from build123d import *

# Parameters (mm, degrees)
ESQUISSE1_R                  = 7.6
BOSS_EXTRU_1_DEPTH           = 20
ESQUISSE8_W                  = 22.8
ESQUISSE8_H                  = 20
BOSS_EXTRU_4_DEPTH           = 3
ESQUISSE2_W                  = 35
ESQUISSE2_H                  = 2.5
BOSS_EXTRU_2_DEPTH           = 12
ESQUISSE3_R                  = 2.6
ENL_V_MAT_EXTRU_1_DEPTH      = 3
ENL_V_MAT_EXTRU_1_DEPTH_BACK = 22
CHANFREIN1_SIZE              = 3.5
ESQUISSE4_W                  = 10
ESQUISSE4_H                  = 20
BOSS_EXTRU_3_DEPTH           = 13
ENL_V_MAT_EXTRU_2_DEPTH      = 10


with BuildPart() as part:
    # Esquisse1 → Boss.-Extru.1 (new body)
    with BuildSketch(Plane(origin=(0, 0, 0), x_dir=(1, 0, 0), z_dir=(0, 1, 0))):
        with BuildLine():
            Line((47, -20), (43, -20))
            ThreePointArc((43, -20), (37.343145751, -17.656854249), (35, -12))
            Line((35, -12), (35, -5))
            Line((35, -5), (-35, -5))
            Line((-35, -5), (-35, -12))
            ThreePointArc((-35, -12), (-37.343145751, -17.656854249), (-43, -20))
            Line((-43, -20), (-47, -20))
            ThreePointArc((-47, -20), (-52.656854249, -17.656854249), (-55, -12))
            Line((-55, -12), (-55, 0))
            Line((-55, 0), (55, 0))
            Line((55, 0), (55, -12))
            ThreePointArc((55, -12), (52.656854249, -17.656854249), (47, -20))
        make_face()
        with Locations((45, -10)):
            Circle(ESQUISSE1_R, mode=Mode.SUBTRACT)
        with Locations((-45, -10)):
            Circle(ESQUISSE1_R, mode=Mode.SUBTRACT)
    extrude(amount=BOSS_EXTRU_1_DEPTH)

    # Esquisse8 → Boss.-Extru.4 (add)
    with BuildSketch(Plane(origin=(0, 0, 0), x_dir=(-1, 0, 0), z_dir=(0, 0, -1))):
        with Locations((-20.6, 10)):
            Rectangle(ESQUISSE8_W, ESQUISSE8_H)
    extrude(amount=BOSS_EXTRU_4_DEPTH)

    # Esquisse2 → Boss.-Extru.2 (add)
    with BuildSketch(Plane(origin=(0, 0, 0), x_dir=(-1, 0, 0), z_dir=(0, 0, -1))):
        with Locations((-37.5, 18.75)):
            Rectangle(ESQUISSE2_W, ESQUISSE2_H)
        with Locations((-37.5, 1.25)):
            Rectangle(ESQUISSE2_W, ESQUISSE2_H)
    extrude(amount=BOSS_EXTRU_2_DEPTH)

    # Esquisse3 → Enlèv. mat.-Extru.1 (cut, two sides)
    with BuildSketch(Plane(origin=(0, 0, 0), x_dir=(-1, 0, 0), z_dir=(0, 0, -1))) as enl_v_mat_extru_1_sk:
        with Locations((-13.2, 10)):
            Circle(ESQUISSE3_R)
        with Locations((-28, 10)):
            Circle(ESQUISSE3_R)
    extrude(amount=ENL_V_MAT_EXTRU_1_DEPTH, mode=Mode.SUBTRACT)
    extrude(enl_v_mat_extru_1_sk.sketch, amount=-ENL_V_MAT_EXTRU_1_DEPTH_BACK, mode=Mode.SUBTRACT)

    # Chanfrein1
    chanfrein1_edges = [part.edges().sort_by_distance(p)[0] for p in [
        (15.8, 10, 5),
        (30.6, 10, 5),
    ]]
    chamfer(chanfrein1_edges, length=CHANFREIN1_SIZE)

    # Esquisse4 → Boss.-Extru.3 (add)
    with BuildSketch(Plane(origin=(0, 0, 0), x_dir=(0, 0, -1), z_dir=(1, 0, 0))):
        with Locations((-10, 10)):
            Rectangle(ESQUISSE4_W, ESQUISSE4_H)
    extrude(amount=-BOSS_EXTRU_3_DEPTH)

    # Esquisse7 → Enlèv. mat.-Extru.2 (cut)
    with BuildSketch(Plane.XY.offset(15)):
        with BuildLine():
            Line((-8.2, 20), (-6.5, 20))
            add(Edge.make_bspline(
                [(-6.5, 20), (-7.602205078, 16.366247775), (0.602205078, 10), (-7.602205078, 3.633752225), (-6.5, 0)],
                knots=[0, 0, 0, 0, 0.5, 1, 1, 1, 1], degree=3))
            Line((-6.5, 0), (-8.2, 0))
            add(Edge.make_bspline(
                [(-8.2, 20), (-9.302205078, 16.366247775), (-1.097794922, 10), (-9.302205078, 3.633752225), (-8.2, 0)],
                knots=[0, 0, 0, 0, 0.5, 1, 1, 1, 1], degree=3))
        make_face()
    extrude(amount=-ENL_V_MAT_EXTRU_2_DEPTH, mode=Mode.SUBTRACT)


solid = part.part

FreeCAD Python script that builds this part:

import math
import FreeCAD as App
import Part
import Sketcher


def edges_at(feature, points):
    """Names of the edges that pass closest to the given points."""
    edges = feature.Shape.Edges
    near = lambda p: min(range(len(edges)), key=lambda i: edges[i].distToShape(Part.Vertex(*p))[0])
    return sorted({f"Edge{near(p) + 1}" for p in points})


def add_polygon(sketch, points):
    """Adds a closed chain of lines whose ends are joined by coincident constraints."""
    first, n = sketch.GeometryCount, len(points)
    for a, b in zip(points, points[1:] + points[:1]):
        sketch.addGeometry(Part.LineSegment(App.Vector(*a, 0), App.Vector(*b, 0)), False)
    for i in range(n):
        sketch.addConstraint(Sketcher.Constraint("Coincident", first + i, 2, first + (i + 1) % n, 1))

doc = App.newDocument("Part")
params = doc.addObject("Spreadsheet::Sheet", "Params")
for row, (alias, value) in enumerate([
    ("sketch1_radius", "8 mm"),
    ("sketch1_diameter", "15.2 mm"),
    ("sketch1_width", "4 mm"),
    ("sketch1_width2", "110 mm"),
    ("sketch1_height", "12 mm"),
    ("pad1_length", "20 mm"),
    ("sketch2_height", "20 mm"),
    ("sketch2_width", "22.8 mm"),
    ("pad2_length", "3 mm"),
    ("sketch3_width", "35 mm"),
    ("sketch3_height", "2.5 mm"),
    ("pad3_length", "12 mm"),
    ("sketch4_diameter", "5.2 mm"),
    ("chamfer_size", "3.5 mm"),
    ("sketch5_width", "20 mm"),
    ("sketch5_height", "10 mm"),
    ("pad4_length", "13 mm"),
    ("pocket2_length", "10 mm"),
], start=1):
    params.set(f"A{row}", alias)
    params.set(f"B{row}", "=" + value)
    params.setAlias(f"B{row}", alias)

body = doc.addObject("PartDesign::Body", "Body")

# Sketch on XZ plane
sketch1 = body.newObject("Sketcher::SketchObject", "Sketch")
sketch1.AttachmentSupport = (doc.getObject("XZ_Plane"), [""])
sketch1.MapMode = "FlatFace"
sketch1.addGeometry([
    Part.LineSegment(App.Vector(43, 20, 0), App.Vector(47, 20, 0)),  # 0
    Part.ArcOfCircle(Part.Circle(App.Vector(47, 12, 0), App.Vector(0, 0, 1), 8), math.radians(0), math.radians(90)),  # 1
    Part.LineSegment(App.Vector(55, 12, 0), App.Vector(55, 0, 0)),  # 2
    Part.LineSegment(App.Vector(55, 0, 0), App.Vector(-55, 0, 0)),  # 3
    Part.LineSegment(App.Vector(-55, 0, 0), App.Vector(-55, 12, 0)),  # 4
    Part.ArcOfCircle(Part.Circle(App.Vector(-47, 12, 0), App.Vector(0, 0, 1), 8), math.radians(90), math.radians(180)),  # 5
    Part.LineSegment(App.Vector(-47, 20, 0), App.Vector(-43, 20, 0)),  # 6
    Part.ArcOfCircle(Part.Circle(App.Vector(-43, 12, 0), App.Vector(0, 0, 1), 8), math.radians(0), math.radians(90)),  # 7
    Part.LineSegment(App.Vector(-35, 12, 0), App.Vector(-35, 5, 0)),  # 8
    Part.LineSegment(App.Vector(-35, 5, 0), App.Vector(35, 5, 0)),  # 9
    Part.LineSegment(App.Vector(35, 5, 0), App.Vector(35, 12, 0)),  # 10
    Part.ArcOfCircle(Part.Circle(App.Vector(43, 12, 0), App.Vector(0, 0, 1), 8), math.radians(90), math.radians(180)),  # 11
    Part.Circle(App.Vector(45, 10, 0), App.Vector(0, 0, 1), 7.6),  # 12
    Part.Circle(App.Vector(-45, 10, 0), App.Vector(0, 0, 1), 7.6),  # 13
], False)
sketch1.addConstraint([
    Sketcher.Constraint("Tangent", 0, 2, 1, 2),
    Sketcher.Constraint("Tangent", 1, 1, 2, 1),
    Sketcher.Constraint("Coincident", 2, 2, 3, 1),
    Sketcher.Constraint("Coincident", 3, 2, 4, 1),
    Sketcher.Constraint("Tangent", 4, 2, 5, 2),
    Sketcher.Constraint("Tangent", 5, 1, 6, 1),
    Sketcher.Constraint("Tangent", 6, 2, 7, 2),
    Sketcher.Constraint("Tangent", 7, 1, 8, 1),
    Sketcher.Constraint("Coincident", 8, 2, 9, 1),
    Sketcher.Constraint("Coincident", 9, 2, 10, 1),
    Sketcher.Constraint("Tangent", 10, 2, 11, 2),
    Sketcher.Constraint("Tangent", 11, 1, 0, 1),
    Sketcher.Constraint("Horizontal", 0),
    Sketcher.Constraint("Vertical", 2),
    Sketcher.Constraint("Horizontal", 3),
    Sketcher.Constraint("Vertical", 4),
    Sketcher.Constraint("Horizontal", 6),
    Sketcher.Constraint("Vertical", 8),
    Sketcher.Constraint("Horizontal", 9),
    Sketcher.Constraint("Vertical", 10),
    Sketcher.Constraint("Equal", 1, 5),
    Sketcher.Constraint("Equal", 5, 7),
    Sketcher.Constraint("Equal", 7, 11),
    Sketcher.Constraint("Equal", 12, 13),
    Sketcher.Constraint("Symmetric", 2, 2, 3, 2, -1, 1),
    Sketcher.Constraint("Symmetric", 7, 3, 11, 3, -2),
    Sketcher.Constraint("Symmetric", 12, 3, 13, 3, -2),
    Sketcher.Constraint("Radius", 1, 8.0),
    Sketcher.Constraint("Diameter", 12, 15.2),
    Sketcher.Constraint("DistanceX", 0, 1, 0, 2, 4.0),
    Sketcher.Constraint("DistanceX", 3, 2, 3, 1, 110.0),
    Sketcher.Constraint("DistanceY", 2, 2, 2, 1, 12.0),
    Sketcher.Constraint("DistanceY", 8, 2, 8, 1, 7.0),
    Sketcher.Constraint("DistanceX", -1, 1, 12, 3, 45.0),
    Sketcher.Constraint("DistanceY", -1, 1, 12, 3, 10.0),
])
sketch1.setExpression("Constraints[27]", "Params.sketch1_radius")
sketch1.setExpression("Constraints[28]", "Params.sketch1_diameter")
sketch1.setExpression("Constraints[29]", "Params.sketch1_width")
sketch1.setExpression("Constraints[30]", "Params.sketch1_width2")
sketch1.setExpression("Constraints[31]", "Params.sketch1_height")
pad1 = body.newObject("PartDesign::Pad", "Pad")
pad1.Profile = sketch1
pad1.setExpression("Length", "Params.pad1_length")
pad1.Reversed = True

# Sketch on XY plane
sketch2 = body.newObject("Sketcher::SketchObject", "Sketch001")
sketch2.AttachmentSupport = (doc.getObject("XY_Plane"), [""])
sketch2.MapMode = "FlatFace"
add_polygon(sketch2, [(32, 20), (32, 0), (9, 0), (9, 20)])  # lines 0-3
sketch2.addConstraint([
    Sketcher.Constraint("Vertical", 0),
    Sketcher.Constraint("Horizontal", 1),
    Sketcher.Constraint("Vertical", 2),
    Sketcher.Constraint("Horizontal", 3),
    Sketcher.Constraint("PointOnObject", 0, 2, -1),
    Sketcher.Constraint("DistanceY", 0, 2, 0, 1, 20.0),
    Sketcher.Constraint("DistanceX", 1, 2, 1, 1, 22.8),
    Sketcher.Constraint("DistanceX", -1, 1, 0, 2, 32.0),
])
sketch2.setExpression("Constraints[9]", "Params.sketch2_height")
sketch2.setExpression("Constraints[10]", "Params.sketch2_width")
pad2 = body.newObject("PartDesign::Pad", "Pad001")
pad2.Profile = sketch2
pad2.setExpression("Length", "Params.pad2_length")
pad2.Reversed = True

# Sketch on XY plane
sketch3 = body.newObject("Sketcher::SketchObject", "Sketch002")
sketch3.AttachmentSupport = (doc.getObject("XY_Plane"), [""])
sketch3.MapMode = "FlatFace"
add_polygon(sketch3, [(55, 20), (55, 17.5), (20, 17.5), (20, 20)])  # lines 0-3
add_polygon(sketch3, [(55, 2.5), (55, 0), (20, 0), (20, 2.5)])  # lines 4-7
sketch3.addConstraint([
    Sketcher.Constraint("Vertical", 0),
    Sketcher.Constraint("Horizontal", 1),
    Sketcher.Constraint("Vertical", 2),
    Sketcher.Constraint("Horizontal", 3),
    Sketcher.Constraint("Vertical", 4),
    Sketcher.Constraint("Horizontal", 5),
    Sketcher.Constraint("Vertical", 6),
    Sketcher.Constraint("Horizontal", 7),
    Sketcher.Constraint("PointOnObject", 4, 2, -1),
    Sketcher.Constraint("Vertical", 3, 2, 4, 2),
    Sketcher.Constraint("Vertical", 2, 2, 5, 2),
    Sketcher.Constraint("Equal", 2, 4),
    Sketcher.Constraint("DistanceX", 1, 2, 1, 1, 35.0),
    Sketcher.Constraint("DistanceY", 0, 2, 0, 1, 2.5),
    Sketcher.Constraint("DistanceX", -1, 1, 0, 2, 55.0),
    Sketcher.Constraint("DistanceY", -1, 1, 2, 2, 20.0),
])
sketch3.setExpression("Constraints[20]", "Params.sketch3_width")
sketch3.setExpression("Constraints[21]", "Params.sketch3_height")
pad3 = body.newObject("PartDesign::Pad", "Pad002")
pad3.Profile = sketch3
pad3.setExpression("Length", "Params.pad3_length")
pad3.Reversed = True

# Sketch on XY plane
sketch4 = body.newObject("Sketcher::SketchObject", "Sketch003")
sketch4.AttachmentSupport = (doc.getObject("XY_Plane"), [""])
sketch4.MapMode = "FlatFace"
sketch4.addGeometry([
    Part.Circle(App.Vector(13.2, 10, 0), App.Vector(0, 0, 1), 2.6),
    Part.Circle(App.Vector(28, 10, 0), App.Vector(0, 0, 1), 2.6),
], False)
sketch4.addConstraint([
    Sketcher.Constraint("Equal", 0, 1),
    Sketcher.Constraint("Horizontal", 0, 3, 1, 3),
    Sketcher.Constraint("Diameter", 0, 5.2),
    Sketcher.Constraint("DistanceY", -1, 1, 0, 3, 10.0),
    Sketcher.Constraint("DistanceX", -1, 1, 1, 3, 28.0),
    Sketcher.Constraint("DistanceX", -1, 1, 0, 3, 13.2),
])
sketch4.setExpression("Constraints[2]", "Params.sketch4_diameter")
pocket1 = body.newObject("PartDesign::Pocket", "Pocket")
pocket1.Profile = sketch4
pocket1.Type = "ThroughAll"
pocket1.Midplane = True
doc.recompute()

chamfer = body.newObject("PartDesign::Chamfer", "Chamfer")
chamfer.Base = (pocket1, edges_at(pocket1, [(15.8, 10, 5), (30.6, 10, 5)]))
chamfer.setExpression("Size", "Params.chamfer_size")

# Sketch on YZ plane
sketch5 = body.newObject("Sketcher::SketchObject", "Sketch004")
sketch5.AttachmentSupport = (doc.getObject("YZ_Plane"), [""])
sketch5.MapMode = "FlatFace"
add_polygon(sketch5, [(20, 15), (0, 15), (0, 5), (20, 5)])  # lines 0-3
sketch5.addConstraint([
    Sketcher.Constraint("Horizontal", 0),
    Sketcher.Constraint("Vertical", 1),
    Sketcher.Constraint("Horizontal", 2),
    Sketcher.Constraint("Vertical", 3),
    Sketcher.Constraint("PointOnObject", 0, 2, -2),
    Sketcher.Constraint("DistanceX", 0, 2, 0, 1, 20.0),
    Sketcher.Constraint("DistanceY", 1, 2, 1, 1, 10.0),
    Sketcher.Constraint("DistanceY", -1, 1, 0, 2, 15.0),
])
sketch5.setExpression("Constraints[9]", "Params.sketch5_width")
sketch5.setExpression("Constraints[10]", "Params.sketch5_height")
pad4 = body.newObject("PartDesign::Pad", "Pad003")
pad4.Profile = sketch5
pad4.setExpression("Length", "Params.pad4_length")
pad4.Reversed = True

# Sketch on XY plane
sketch6 = body.newObject("Sketcher::SketchObject", "Sketch005")
sketch6.AttachmentSupport = (doc.getObject("XY_Plane"), [""])
sketch6.MapMode = "FlatFace"
sketch6.AttachmentOffset = App.Placement(App.Vector(0, 0, 15), App.Rotation())
sketch6.addGeometry([
    Part.LineSegment(App.Vector(-6.5, 20, 0), App.Vector(-8.2, 20, 0)),
    Part.BSplineCurve([App.Vector(-8.2, 20, 0), App.Vector(-9.302205, 16.366248, 0), App.Vector(-1.097795, 10, 0), App.Vector(-9.302205, 3.633752, 0), App.Vector(-8.2, 0, 0)], [4, 1, 4], [0, 0.5, 1], False, 3, [1, 1, 1, 1, 1], False),
    Part.LineSegment(App.Vector(-8.2, 0, 0), App.Vector(-6.5, 0, 0)),
    Part.BSplineCurve([App.Vector(-6.5, 20, 0), App.Vector(-7.602205, 16.366248, 0), App.Vector(0.602205, 10, 0), App.Vector(-7.602205, 3.633752, 0), App.Vector(-6.5, 0, 0)], [4, 1, 4], [0, 0.5, 1], False, 3, [1, 1, 1, 1, 1], False),
], False)
sketch6.addConstraint([
    Sketcher.Constraint("Block", 1),
    Sketcher.Constraint("Block", 3),
    Sketcher.Constraint("Coincident", 0, 2, 1, 1),
    Sketcher.Constraint("Coincident", 1, 2, 2, 1),
    Sketcher.Constraint("Coincident", 2, 2, 3, 2),
    Sketcher.Constraint("Coincident", 3, 1, 0, 1),
])
pocket2 = body.newObject("PartDesign::Pocket", "Pocket001")
pocket2.Profile = sketch6
pocket2.setExpression("Length", "Params.pocket2_length")

doc.recompute()
